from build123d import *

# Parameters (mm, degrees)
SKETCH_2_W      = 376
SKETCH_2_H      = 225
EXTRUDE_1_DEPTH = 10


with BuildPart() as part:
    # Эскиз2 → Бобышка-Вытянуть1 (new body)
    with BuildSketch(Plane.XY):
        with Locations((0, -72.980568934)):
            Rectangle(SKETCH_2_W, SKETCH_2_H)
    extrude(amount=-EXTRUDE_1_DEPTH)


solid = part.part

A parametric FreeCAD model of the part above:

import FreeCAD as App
import Part
import Sketcher
Q = App.Units.Quantity

doc = App.newDocument("Part")
params = doc.addObject("Spreadsheet::Sheet", "Params")
for row, (alias, value) in enumerate([
    ("sketch1_width", "376 mm"),
    ("sketch1_height", "225 mm"),
    ("pad1_length", "10 mm"),
], start=1):
    params.set(f"A{row}", alias)
    params.set(f"B{row}", "=" + value)
    params.setAlias(f"B{row}", alias)

body = doc.addObject("PartDesign::Body", "Body")

# Sketch on XY plane
sketch1 = body.newObject("Sketcher::SketchObject", "Sketch")
sketch1.AttachmentSupport = (doc.getObject("XY_Plane"), [""])
sketch1.MapMode = "FlatFace"
sketch1.addGeometry(Part.LineSegment(App.Vector(-188, 40, 0), App.Vector(-188, -185, 0)), False)
sketch1.addGeometry(Part.LineSegment(App.Vector(-188, -185, 0), App.Vector(188, -185, 0)), False)
sketch1.addGeometry(Part.LineSegment(App.Vector(188, -185, 0), App.Vector(188, 40, 0)), False)
sketch1.addGeometry(Part.LineSegment(App.Vector(188, 40, 0), App.Vector(-188, 40, 0)), False)
sketch1.addConstraint(Sketcher.Constraint("Coincident", 0, 2, 1, 1))
sketch1.addConstraint(Sketcher.Constraint("Coincident", 1, 2, 2, 1))
sketch1.addConstraint(Sketcher.Constraint("Coincident", 2, 2, 3, 1))
sketch1.addConstraint(Sketcher.Constraint("Coincident", 3, 2, 0, 1))
sketch1.addConstraint(Sketcher.Constraint("Vertical", 0))
sketch1.addConstraint(Sketcher.Constraint("Horizontal", 1))
sketch1.addConstraint(Sketcher.Constraint("Vertical", 2))
sketch1.addConstraint(Sketcher.Constraint("Horizontal", 3))
sketch1.addConstraint(Sketcher.Constraint("DistanceX", 1, 1, 1, 2, Q("376 mm")))
sketch1.addConstraint(Sketcher.Constraint("DistanceY", 0, 2, 0, 1, Q("225 mm")))
sketch1.addConstraint(Sketcher.Constraint("DistanceX", 0, 2, -1, 1, Q("188 mm")))
sketch1.addConstraint(Sketcher.Constraint("DistanceY", 0, 2, -1, 1, Q("185.480569 mm")))
sketch1.setExpression("Constraints[8]", "Params.sketch1_width")
sketch1.setExpression("Constraints[9]", "Params.sketch1_height")
pad1 = body.newObject("PartDesign::Pad", "Pad")
pad1.Profile = sketch1
pad1.setExpression("Length", "Params.pad1_length")
pad1.Reversed = True

doc.recompute()
